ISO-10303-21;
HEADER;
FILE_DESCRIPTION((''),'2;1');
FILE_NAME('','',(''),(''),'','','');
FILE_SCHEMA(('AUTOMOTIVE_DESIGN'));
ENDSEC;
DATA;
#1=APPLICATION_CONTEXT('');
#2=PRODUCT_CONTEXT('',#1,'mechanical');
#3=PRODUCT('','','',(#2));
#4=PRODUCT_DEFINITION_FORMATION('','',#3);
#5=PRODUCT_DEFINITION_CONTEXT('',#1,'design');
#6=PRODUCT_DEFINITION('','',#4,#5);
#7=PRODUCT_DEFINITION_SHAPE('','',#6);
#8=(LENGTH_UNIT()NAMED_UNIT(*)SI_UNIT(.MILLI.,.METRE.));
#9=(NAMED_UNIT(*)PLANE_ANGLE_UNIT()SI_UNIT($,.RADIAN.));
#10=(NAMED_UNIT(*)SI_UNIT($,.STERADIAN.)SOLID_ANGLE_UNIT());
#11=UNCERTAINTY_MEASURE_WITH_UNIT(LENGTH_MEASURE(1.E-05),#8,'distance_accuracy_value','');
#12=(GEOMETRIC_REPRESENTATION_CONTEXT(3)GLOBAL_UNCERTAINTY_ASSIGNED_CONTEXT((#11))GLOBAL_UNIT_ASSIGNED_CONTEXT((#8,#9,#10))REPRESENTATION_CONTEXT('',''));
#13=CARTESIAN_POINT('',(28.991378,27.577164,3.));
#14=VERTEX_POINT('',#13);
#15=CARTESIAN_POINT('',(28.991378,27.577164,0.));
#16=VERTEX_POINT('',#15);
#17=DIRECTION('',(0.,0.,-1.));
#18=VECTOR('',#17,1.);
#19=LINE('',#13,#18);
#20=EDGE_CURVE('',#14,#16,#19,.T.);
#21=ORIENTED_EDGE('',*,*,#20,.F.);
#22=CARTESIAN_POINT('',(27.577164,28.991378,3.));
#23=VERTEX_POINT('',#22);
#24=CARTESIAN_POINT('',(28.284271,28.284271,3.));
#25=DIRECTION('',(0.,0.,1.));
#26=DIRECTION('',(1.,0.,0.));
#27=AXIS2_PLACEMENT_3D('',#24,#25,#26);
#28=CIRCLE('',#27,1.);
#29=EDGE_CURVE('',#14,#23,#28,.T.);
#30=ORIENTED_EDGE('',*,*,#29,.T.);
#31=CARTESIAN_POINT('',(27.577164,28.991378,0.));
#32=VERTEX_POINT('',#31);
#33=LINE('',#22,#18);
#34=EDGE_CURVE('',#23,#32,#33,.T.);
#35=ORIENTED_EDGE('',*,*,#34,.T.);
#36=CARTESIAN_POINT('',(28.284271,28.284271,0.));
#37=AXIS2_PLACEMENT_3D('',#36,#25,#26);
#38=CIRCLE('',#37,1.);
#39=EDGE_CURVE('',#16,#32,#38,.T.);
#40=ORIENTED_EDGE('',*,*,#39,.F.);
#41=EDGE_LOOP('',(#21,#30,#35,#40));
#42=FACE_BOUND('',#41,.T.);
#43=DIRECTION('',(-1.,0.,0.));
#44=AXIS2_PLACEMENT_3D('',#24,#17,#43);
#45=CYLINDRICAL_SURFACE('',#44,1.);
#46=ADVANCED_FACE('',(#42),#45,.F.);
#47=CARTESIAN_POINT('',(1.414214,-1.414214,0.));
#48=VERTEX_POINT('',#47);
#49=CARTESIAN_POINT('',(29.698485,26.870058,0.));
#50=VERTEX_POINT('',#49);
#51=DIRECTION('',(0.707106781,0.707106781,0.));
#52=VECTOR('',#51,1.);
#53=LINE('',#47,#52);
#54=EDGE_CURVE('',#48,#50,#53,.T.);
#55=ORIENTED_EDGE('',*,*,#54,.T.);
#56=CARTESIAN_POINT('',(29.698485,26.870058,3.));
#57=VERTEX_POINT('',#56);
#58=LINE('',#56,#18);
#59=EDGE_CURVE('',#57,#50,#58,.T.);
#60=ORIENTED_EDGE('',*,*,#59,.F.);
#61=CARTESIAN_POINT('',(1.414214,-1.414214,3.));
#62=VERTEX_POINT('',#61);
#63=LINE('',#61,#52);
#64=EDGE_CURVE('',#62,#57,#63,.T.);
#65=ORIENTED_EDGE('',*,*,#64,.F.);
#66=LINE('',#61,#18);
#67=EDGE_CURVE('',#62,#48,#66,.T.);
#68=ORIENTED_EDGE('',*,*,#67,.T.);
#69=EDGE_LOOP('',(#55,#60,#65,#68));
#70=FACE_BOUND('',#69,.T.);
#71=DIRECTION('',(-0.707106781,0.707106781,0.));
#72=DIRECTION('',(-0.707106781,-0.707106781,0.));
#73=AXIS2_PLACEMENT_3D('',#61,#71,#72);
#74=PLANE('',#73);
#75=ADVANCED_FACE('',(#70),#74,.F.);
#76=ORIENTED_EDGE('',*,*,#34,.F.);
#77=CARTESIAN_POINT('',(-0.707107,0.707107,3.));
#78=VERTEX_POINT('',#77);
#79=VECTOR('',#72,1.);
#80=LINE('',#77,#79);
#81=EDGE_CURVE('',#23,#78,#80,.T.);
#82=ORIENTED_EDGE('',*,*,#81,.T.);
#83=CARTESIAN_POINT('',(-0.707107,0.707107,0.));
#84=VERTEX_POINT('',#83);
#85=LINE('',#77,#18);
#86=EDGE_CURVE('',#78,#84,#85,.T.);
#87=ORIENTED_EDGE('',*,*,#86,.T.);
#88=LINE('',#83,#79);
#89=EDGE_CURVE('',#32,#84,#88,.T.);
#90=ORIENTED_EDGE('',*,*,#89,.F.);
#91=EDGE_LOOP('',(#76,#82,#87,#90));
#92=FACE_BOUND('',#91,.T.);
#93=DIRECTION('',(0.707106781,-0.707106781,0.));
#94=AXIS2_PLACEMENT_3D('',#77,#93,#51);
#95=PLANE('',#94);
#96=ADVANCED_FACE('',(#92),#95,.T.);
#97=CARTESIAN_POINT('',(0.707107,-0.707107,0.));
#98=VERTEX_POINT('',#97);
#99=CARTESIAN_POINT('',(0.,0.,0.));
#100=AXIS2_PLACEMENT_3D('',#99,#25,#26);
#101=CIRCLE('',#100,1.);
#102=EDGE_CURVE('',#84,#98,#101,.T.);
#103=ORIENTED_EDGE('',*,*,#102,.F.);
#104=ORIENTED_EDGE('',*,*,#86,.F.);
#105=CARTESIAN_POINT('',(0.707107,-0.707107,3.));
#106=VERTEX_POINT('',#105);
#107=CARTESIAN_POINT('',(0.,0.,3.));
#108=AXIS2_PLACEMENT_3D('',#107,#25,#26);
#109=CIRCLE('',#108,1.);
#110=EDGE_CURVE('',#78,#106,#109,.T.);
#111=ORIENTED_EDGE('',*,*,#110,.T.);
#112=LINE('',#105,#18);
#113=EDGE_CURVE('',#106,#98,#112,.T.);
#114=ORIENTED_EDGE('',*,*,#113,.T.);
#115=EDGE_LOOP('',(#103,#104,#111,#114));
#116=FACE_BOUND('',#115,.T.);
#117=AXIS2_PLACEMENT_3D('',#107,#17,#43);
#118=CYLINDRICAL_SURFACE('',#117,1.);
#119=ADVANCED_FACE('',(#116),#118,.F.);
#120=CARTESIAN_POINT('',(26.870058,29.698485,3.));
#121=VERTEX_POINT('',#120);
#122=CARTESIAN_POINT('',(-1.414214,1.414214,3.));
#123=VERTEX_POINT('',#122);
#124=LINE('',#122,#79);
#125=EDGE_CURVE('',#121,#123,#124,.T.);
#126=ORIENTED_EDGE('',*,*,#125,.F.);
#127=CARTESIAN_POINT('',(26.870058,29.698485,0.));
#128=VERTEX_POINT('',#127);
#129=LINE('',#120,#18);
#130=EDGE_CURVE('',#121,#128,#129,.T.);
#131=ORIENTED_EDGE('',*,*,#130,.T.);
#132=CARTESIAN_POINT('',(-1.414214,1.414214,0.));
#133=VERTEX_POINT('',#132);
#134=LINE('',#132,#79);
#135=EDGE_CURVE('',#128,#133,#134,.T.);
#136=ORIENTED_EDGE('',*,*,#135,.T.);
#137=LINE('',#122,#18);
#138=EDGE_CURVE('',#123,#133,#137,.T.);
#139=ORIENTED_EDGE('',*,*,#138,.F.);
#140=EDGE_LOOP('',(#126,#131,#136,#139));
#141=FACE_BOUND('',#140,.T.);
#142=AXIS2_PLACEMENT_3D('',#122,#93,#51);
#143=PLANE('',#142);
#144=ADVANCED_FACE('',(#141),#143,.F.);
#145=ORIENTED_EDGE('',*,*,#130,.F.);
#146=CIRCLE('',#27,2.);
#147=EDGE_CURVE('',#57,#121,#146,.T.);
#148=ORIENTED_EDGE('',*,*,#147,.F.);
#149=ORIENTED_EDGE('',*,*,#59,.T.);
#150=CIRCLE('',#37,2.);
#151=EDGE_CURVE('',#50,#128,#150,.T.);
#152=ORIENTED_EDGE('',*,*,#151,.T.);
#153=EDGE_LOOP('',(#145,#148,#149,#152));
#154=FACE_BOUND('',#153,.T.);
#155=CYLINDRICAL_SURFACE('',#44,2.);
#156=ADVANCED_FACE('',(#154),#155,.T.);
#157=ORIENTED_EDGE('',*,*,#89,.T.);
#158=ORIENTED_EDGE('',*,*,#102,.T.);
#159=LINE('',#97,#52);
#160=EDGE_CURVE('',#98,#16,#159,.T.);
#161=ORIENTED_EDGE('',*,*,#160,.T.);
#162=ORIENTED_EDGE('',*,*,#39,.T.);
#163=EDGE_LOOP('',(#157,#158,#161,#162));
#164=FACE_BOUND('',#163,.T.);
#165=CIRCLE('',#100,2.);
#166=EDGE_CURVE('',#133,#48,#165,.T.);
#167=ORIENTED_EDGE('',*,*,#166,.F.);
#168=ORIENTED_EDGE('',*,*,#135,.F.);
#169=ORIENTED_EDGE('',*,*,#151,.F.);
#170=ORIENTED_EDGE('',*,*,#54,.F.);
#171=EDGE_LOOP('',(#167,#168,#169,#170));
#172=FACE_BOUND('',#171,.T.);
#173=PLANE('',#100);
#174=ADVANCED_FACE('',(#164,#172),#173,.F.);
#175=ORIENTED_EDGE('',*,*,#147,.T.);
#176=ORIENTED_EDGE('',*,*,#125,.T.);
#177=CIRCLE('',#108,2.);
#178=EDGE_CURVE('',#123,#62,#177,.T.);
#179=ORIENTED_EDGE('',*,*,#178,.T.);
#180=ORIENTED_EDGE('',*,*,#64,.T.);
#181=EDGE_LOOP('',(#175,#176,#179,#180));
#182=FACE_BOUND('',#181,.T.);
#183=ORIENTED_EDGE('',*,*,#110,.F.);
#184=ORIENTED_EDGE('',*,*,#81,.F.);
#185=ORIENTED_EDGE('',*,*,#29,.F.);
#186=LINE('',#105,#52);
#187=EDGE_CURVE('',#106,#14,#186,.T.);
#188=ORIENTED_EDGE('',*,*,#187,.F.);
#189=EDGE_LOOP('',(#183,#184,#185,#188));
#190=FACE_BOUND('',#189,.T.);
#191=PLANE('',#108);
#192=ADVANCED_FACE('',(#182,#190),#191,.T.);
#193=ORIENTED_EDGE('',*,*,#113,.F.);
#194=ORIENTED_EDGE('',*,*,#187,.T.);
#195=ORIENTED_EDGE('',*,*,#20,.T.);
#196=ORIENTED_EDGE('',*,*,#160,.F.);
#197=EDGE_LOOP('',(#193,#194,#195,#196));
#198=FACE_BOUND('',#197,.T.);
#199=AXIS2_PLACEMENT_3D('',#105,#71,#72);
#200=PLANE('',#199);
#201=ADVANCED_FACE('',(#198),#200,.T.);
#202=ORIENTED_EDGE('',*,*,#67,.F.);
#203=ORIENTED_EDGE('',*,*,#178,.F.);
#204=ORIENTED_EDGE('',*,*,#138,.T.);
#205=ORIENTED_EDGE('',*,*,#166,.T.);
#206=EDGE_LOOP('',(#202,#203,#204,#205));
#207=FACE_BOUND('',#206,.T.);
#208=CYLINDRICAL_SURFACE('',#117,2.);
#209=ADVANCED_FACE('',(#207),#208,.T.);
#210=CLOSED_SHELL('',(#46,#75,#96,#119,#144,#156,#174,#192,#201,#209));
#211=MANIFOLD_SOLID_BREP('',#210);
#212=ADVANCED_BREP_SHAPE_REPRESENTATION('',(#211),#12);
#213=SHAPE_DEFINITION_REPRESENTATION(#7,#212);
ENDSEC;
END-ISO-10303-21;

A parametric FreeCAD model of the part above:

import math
import FreeCAD as App
import Part
import Sketcher

V = App.Vector
Q = App.Units.Quantity

doc = App.newDocument("Part")
body = doc.addObject("PartDesign::Body", "Body")

# Sketch on XY plane
sketch1 = doc.addObject("Sketcher::SketchObject", "Sketch")
body.addObject(sketch1)
sketch1.AttachmentSupport = (doc.XY_Plane, [""])
sketch1.MapMode = "FlatFace"
sketch1.addGeometry([
    Part.LineSegment(V(26.9, 29.7, 0), V(-1.4, 1.4, 0)),  # 0
    Part.ArcOfCircle(Part.Circle(V(0, 0, 0), V(0, 0, 1), 2), math.radians(135), math.radians(315)),  # 1
    Part.LineSegment(V(1.4, -1.4, 0), V(29.7, 26.9, 0)),  # 2
    Part.ArcOfCircle(Part.Circle(V(28.3, 28.3, 0), V(0, 0, 1), 2), math.radians(-45), math.radians(135)),  # 3
    Part.LineSegment(V(-0.7, 0.7, 0), V(27.6, 29, 0)),  # 4
    Part.ArcOfCircle(Part.Circle(V(28.3, 28.3, 0), V(0, 0, 1), 1), math.radians(-45), math.radians(135)),  # 5
    Part.LineSegment(V(29, 27.6, 0), V(0.7, -0.7, 0)),  # 6
    Part.ArcOfCircle(Part.Circle(V(0, 0, 0), V(0, 0, 1), 1), math.radians(135), math.radians(315)),  # 7
], False)
sketch1.addConstraint([
    Sketcher.Constraint("Tangent", 0, 2, 1, 1),
    Sketcher.Constraint("Tangent", 1, 2, 2, 1),
    Sketcher.Constraint("Tangent", 2, 2, 3, 1),
    Sketcher.Constraint("Tangent", 3, 2, 0, 1),
    Sketcher.Constraint("Tangent", 4, 2, 5, 2),
    Sketcher.Constraint("Tangent", 5, 1, 6, 1),
    Sketcher.Constraint("Tangent", 6, 2, 7, 2),
    Sketcher.Constraint("Tangent", 7, 1, 4, 1),
    Sketcher.Constraint("Coincident", 1, 3, -1, 1),
    Sketcher.Constraint("Coincident", 7, 3, -1, 1),
    Sketcher.Constraint("Coincident", 5, 3, 3, 3),
    Sketcher.Constraint("Equal", 1, 3),
    Sketcher.Constraint("Equal", 5, 7),
    Sketcher.Constraint("Radius", 1, Q("2 mm")),
    Sketcher.Constraint("Radius", 5, Q("1 mm")),
    Sketcher.Constraint("Angle", 0, Q("-135 deg")),
    Sketcher.Constraint("Distance", 0, Q("40 mm")),
])
pad1 = doc.addObject("PartDesign::Pad", "Pad")
body.addObject(pad1)
pad1.Profile = sketch1
pad1.Length = 3

doc.recompute()
